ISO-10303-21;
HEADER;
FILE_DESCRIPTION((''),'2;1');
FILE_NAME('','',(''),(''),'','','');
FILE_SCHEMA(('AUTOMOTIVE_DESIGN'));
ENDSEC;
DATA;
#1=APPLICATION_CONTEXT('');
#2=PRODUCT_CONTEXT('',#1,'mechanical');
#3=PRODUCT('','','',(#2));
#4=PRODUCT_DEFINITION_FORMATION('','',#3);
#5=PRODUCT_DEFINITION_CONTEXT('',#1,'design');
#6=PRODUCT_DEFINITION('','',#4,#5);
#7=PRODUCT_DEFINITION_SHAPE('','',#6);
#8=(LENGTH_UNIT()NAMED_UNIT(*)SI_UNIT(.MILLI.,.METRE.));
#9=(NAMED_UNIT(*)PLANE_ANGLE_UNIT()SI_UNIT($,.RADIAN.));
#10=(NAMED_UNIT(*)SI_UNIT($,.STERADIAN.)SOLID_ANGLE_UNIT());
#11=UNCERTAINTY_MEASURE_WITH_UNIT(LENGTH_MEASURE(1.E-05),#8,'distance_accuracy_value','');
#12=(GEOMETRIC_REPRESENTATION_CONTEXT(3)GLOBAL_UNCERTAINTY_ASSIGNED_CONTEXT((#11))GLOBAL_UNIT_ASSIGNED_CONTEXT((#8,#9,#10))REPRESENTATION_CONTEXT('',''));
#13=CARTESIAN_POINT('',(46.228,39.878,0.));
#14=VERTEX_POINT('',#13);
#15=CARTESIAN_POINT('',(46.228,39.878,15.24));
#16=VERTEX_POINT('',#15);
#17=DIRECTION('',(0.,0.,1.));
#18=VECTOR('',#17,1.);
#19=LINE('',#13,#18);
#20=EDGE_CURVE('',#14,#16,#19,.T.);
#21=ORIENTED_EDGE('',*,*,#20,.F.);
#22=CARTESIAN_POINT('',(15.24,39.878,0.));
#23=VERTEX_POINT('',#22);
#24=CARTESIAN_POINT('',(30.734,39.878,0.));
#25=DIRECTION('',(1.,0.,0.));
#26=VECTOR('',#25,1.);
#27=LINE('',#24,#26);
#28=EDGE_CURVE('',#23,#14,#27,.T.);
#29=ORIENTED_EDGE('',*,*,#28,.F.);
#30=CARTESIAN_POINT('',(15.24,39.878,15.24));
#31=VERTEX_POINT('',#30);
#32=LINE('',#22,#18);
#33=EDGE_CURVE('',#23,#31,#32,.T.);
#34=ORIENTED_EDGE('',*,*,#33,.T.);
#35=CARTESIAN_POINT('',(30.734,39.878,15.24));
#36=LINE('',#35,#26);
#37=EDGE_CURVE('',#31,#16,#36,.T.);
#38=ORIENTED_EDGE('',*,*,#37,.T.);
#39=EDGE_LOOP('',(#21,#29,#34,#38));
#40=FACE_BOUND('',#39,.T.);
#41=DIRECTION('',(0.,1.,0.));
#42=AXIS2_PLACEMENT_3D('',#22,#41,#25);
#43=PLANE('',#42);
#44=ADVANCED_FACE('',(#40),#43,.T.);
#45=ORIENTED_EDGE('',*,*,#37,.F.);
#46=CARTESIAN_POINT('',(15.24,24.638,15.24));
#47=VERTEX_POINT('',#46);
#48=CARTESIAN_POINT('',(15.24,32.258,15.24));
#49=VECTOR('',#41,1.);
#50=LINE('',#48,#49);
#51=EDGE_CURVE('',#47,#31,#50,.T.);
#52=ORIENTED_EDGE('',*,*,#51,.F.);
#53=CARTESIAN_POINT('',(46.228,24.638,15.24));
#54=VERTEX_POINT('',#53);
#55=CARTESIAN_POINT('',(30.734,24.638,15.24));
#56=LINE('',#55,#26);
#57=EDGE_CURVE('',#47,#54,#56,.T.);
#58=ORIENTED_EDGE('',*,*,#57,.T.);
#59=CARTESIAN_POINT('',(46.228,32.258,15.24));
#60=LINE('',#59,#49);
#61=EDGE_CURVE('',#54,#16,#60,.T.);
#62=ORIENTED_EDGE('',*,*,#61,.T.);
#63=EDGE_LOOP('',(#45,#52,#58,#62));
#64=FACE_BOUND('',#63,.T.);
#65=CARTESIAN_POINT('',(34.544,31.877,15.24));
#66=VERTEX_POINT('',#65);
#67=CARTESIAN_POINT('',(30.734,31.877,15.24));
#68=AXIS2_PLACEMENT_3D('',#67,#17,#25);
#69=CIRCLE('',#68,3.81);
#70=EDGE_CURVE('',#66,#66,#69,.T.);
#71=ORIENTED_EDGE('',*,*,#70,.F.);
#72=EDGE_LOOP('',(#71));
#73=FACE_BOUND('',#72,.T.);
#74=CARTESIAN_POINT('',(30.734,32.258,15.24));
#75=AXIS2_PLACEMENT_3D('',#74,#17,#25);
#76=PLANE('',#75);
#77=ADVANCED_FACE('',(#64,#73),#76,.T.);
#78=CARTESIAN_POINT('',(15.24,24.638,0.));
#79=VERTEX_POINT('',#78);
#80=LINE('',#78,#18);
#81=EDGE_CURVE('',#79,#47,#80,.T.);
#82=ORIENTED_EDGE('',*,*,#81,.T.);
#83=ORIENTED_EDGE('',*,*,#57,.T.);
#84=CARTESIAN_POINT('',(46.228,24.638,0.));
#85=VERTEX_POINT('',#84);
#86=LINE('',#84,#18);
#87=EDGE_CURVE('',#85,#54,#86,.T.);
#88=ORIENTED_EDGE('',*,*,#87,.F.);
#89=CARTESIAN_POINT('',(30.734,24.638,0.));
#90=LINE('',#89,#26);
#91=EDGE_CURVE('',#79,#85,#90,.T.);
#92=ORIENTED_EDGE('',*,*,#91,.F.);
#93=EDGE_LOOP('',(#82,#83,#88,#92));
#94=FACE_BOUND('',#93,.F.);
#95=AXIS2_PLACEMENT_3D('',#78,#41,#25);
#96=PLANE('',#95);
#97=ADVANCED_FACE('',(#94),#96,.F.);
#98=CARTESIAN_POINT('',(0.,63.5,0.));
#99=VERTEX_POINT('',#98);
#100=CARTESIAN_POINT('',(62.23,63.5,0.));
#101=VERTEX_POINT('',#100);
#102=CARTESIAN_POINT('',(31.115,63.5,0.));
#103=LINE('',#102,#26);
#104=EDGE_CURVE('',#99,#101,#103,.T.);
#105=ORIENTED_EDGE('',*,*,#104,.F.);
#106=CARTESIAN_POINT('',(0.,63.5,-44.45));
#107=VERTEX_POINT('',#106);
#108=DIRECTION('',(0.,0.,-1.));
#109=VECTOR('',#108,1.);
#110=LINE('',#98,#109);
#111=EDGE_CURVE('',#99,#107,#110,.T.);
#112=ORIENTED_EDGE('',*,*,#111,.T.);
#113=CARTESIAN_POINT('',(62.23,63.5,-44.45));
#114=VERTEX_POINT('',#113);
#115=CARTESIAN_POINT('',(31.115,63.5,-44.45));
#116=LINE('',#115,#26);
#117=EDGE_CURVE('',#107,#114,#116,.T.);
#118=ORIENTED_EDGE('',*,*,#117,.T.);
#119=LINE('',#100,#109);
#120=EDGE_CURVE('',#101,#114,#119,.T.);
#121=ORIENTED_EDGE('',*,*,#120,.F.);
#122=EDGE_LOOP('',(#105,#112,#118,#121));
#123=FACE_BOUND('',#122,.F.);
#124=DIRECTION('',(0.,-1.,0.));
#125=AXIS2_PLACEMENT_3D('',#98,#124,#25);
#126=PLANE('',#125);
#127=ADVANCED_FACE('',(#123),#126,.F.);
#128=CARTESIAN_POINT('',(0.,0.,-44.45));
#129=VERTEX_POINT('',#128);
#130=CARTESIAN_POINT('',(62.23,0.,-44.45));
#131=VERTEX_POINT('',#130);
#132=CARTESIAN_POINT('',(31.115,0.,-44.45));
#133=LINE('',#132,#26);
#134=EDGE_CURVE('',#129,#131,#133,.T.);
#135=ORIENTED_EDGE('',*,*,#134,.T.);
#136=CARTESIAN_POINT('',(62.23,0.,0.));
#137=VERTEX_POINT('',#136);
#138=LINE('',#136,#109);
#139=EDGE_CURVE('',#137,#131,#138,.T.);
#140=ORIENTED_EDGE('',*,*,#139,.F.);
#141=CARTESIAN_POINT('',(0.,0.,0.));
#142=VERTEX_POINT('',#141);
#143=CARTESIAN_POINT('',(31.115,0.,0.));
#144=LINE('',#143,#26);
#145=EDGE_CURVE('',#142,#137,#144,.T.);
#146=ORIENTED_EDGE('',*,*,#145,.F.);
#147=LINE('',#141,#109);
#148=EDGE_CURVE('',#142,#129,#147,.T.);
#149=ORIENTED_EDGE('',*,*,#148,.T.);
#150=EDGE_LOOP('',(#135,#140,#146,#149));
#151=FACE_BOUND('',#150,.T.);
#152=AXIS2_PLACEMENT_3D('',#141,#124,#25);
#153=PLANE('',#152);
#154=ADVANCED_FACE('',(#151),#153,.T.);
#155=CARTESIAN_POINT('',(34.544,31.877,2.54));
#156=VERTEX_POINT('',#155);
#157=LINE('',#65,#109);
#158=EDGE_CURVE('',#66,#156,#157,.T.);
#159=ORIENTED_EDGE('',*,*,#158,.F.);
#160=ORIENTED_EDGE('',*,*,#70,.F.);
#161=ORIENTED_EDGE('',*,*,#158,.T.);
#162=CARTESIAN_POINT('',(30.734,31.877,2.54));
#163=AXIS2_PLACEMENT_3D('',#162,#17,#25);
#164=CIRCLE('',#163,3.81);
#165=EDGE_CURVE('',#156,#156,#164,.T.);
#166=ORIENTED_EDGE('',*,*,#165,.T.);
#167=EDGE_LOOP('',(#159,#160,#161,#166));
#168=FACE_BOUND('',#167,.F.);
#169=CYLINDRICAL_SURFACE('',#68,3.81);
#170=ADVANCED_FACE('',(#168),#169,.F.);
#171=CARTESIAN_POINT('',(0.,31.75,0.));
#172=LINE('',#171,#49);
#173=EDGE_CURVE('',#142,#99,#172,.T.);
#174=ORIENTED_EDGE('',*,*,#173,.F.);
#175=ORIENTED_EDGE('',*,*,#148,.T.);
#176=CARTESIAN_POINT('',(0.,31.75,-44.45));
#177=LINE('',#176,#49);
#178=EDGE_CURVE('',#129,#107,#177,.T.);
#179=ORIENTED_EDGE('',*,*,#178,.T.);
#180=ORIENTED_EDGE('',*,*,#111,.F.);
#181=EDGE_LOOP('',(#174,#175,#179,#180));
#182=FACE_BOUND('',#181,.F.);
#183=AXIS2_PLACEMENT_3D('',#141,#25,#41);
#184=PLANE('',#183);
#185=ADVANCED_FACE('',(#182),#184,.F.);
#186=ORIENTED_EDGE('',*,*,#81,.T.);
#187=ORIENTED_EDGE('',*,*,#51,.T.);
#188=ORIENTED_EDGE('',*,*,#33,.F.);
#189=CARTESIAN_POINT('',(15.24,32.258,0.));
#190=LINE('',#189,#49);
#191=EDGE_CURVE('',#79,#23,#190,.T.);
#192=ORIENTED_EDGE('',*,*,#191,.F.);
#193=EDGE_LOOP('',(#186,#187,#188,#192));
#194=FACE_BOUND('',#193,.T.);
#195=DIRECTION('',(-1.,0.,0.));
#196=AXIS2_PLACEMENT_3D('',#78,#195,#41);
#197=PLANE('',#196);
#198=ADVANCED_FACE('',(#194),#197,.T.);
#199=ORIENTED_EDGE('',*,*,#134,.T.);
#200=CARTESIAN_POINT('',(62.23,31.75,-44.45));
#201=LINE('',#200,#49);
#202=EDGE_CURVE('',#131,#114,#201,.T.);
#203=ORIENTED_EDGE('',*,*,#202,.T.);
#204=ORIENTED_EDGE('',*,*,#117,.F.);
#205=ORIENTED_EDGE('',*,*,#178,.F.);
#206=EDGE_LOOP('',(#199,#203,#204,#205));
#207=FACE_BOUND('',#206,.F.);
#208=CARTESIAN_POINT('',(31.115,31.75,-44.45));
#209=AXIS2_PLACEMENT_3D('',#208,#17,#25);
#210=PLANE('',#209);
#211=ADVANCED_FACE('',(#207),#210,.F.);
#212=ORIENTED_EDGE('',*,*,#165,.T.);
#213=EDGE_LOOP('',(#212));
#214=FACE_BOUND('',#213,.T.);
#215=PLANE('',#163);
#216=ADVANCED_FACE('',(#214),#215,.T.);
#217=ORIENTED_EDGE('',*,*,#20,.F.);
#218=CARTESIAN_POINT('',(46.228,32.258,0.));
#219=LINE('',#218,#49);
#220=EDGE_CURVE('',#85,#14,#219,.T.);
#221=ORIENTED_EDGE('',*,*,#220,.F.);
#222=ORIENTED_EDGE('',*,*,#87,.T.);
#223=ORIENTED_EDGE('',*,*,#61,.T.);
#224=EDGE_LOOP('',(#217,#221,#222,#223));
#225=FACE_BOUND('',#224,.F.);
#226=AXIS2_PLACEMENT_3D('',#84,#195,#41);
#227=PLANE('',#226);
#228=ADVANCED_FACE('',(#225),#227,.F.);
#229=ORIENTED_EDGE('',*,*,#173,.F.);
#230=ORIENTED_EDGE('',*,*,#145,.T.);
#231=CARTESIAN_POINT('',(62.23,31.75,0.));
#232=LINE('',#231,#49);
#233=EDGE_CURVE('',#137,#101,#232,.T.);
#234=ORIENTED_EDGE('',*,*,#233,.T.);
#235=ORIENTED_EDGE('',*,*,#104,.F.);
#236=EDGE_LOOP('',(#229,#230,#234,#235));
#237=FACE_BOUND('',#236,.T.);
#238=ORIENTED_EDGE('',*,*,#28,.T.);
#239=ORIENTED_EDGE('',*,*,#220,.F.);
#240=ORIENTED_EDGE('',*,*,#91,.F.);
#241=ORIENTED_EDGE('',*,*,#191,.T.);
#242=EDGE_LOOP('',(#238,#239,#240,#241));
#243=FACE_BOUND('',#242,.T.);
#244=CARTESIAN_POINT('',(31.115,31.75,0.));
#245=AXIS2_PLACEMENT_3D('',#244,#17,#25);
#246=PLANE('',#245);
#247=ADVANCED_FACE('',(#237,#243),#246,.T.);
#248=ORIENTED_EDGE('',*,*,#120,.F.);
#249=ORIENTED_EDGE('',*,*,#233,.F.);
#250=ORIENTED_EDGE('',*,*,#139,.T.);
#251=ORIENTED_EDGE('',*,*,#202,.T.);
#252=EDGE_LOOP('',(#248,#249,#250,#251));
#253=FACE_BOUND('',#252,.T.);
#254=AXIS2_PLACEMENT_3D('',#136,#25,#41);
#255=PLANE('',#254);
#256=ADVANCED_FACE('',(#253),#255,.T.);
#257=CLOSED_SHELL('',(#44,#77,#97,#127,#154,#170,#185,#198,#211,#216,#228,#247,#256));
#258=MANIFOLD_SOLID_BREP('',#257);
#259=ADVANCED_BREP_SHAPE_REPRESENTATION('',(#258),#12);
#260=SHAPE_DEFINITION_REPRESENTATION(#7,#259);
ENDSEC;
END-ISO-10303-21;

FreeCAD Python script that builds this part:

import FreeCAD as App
import Part
import Sketcher
from FreeCAD import Vector
Q = App.Units.Quantity

doc = App.newDocument("Part")
body = doc.addObject("PartDesign::Body", "Body")

sketch1 = body.newObject("Sketcher::SketchObject", "Sketch")
sketch1.AttachmentSupport = (doc.getObject("XY_Plane"), [""])
sketch1.MapMode = "FlatFace"
sketch1.addGeometry([
    Part.LineSegment(Vector(0, 64, 0), Vector(0, 0, 0)),
    Part.LineSegment(Vector(0, 0, 0), Vector(62, 0, 0)),
    Part.LineSegment(Vector(62, 0, 0), Vector(62, 64, 0)),
    Part.LineSegment(Vector(62, 64, 0), Vector(0, 64, 0)),
], False)
sketch1.addConstraint([
    Sketcher.Constraint("Coincident", 0, 2, 1, 1),
    Sketcher.Constraint("Coincident", 1, 2, 2, 1),
    Sketcher.Constraint("Coincident", 2, 2, 3, 1),
    Sketcher.Constraint("Coincident", 3, 2, 0, 1),
    Sketcher.Constraint("Vertical", 0),
    Sketcher.Constraint("Horizontal", 1),
    Sketcher.Constraint("Vertical", 2),
    Sketcher.Constraint("Horizontal", 3),
    Sketcher.Constraint("Coincident", 0, 2, -1, 1),
    Sketcher.Constraint("DistanceY", 0, 2, 0, 1, Q("2.5 in")),
    Sketcher.Constraint("DistanceX", 1, 1, 1, 2, Q("2.45 in")),
])
pad1 = body.newObject("PartDesign::Pad", "Pad")
pad1.Profile = sketch1
pad1.Length = Q("1.75 in")
pad1.Reversed = True

sketch2 = body.newObject("Sketcher::SketchObject", "Sketch001")
sketch2.AttachmentSupport = (doc.getObject("XY_Plane"), [""])
sketch2.MapMode = "FlatFace"
sketch2.addGeometry([
    Part.LineSegment(Vector(15, 40, 0), Vector(15, 25, 0)),
    Part.LineSegment(Vector(15, 25, 0), Vector(46, 25, 0)),
    Part.LineSegment(Vector(46, 25, 0), Vector(46, 40, 0)),
    Part.LineSegment(Vector(46, 40, 0), Vector(15, 40, 0)),
], False)
sketch2.addConstraint([
    Sketcher.Constraint("Coincident", 0, 2, 1, 1),
    Sketcher.Constraint("Coincident", 1, 2, 2, 1),
    Sketcher.Constraint("Coincident", 2, 2, 3, 1),
    Sketcher.Constraint("Coincident", 3, 2, 0, 1),
    Sketcher.Constraint("Vertical", 0),
    Sketcher.Constraint("Horizontal", 1),
    Sketcher.Constraint("Vertical", 2),
    Sketcher.Constraint("Horizontal", 3),
    Sketcher.Constraint("DistanceY", 0, 2, 0, 1, Q("0.6 in")),
    Sketcher.Constraint("DistanceX", 1, 1, 1, 2, Q("1.22 in")),
    Sketcher.Constraint("DistanceX", -1, 1, 0, 2, Q("0.6 in")),
    Sketcher.Constraint("DistanceY", -1, 1, 0, 2, Q("0.97 in")),
])
pad2 = body.newObject("PartDesign::Pad", "Pad001")
pad2.Profile = sketch2
pad2.Length = Q("0.6 in")

sketch3 = body.newObject("Sketcher::SketchObject", "Sketch002")
sketch3.AttachmentSupport = (doc.getObject("XY_Plane"), [""])
sketch3.MapMode = "FlatFace"
sketch3.AttachmentOffset = App.Placement(Vector(0, 0, 0.6 * 25.4), App.Rotation())
sketch3.addGeometry(Part.Circle(Vector(30.7, 31.9, 0), Vector(0, 0, 1), 3.8), False)
sketch3.addConstraint([
    Sketcher.Constraint("Diameter", 0, Q("0.3 in")),
    Sketcher.Constraint("DistanceX", -1, 1, 0, 3, Q("1.21 in")),
    Sketcher.Constraint("DistanceY", -1, 1, 0, 3, Q("1.255 in")),
])
pocket1 = body.newObject("PartDesign::Pocket", "Pocket")
pocket1.Profile = sketch3
pocket1.Length = Q("0.5 in")

doc.recompute()
